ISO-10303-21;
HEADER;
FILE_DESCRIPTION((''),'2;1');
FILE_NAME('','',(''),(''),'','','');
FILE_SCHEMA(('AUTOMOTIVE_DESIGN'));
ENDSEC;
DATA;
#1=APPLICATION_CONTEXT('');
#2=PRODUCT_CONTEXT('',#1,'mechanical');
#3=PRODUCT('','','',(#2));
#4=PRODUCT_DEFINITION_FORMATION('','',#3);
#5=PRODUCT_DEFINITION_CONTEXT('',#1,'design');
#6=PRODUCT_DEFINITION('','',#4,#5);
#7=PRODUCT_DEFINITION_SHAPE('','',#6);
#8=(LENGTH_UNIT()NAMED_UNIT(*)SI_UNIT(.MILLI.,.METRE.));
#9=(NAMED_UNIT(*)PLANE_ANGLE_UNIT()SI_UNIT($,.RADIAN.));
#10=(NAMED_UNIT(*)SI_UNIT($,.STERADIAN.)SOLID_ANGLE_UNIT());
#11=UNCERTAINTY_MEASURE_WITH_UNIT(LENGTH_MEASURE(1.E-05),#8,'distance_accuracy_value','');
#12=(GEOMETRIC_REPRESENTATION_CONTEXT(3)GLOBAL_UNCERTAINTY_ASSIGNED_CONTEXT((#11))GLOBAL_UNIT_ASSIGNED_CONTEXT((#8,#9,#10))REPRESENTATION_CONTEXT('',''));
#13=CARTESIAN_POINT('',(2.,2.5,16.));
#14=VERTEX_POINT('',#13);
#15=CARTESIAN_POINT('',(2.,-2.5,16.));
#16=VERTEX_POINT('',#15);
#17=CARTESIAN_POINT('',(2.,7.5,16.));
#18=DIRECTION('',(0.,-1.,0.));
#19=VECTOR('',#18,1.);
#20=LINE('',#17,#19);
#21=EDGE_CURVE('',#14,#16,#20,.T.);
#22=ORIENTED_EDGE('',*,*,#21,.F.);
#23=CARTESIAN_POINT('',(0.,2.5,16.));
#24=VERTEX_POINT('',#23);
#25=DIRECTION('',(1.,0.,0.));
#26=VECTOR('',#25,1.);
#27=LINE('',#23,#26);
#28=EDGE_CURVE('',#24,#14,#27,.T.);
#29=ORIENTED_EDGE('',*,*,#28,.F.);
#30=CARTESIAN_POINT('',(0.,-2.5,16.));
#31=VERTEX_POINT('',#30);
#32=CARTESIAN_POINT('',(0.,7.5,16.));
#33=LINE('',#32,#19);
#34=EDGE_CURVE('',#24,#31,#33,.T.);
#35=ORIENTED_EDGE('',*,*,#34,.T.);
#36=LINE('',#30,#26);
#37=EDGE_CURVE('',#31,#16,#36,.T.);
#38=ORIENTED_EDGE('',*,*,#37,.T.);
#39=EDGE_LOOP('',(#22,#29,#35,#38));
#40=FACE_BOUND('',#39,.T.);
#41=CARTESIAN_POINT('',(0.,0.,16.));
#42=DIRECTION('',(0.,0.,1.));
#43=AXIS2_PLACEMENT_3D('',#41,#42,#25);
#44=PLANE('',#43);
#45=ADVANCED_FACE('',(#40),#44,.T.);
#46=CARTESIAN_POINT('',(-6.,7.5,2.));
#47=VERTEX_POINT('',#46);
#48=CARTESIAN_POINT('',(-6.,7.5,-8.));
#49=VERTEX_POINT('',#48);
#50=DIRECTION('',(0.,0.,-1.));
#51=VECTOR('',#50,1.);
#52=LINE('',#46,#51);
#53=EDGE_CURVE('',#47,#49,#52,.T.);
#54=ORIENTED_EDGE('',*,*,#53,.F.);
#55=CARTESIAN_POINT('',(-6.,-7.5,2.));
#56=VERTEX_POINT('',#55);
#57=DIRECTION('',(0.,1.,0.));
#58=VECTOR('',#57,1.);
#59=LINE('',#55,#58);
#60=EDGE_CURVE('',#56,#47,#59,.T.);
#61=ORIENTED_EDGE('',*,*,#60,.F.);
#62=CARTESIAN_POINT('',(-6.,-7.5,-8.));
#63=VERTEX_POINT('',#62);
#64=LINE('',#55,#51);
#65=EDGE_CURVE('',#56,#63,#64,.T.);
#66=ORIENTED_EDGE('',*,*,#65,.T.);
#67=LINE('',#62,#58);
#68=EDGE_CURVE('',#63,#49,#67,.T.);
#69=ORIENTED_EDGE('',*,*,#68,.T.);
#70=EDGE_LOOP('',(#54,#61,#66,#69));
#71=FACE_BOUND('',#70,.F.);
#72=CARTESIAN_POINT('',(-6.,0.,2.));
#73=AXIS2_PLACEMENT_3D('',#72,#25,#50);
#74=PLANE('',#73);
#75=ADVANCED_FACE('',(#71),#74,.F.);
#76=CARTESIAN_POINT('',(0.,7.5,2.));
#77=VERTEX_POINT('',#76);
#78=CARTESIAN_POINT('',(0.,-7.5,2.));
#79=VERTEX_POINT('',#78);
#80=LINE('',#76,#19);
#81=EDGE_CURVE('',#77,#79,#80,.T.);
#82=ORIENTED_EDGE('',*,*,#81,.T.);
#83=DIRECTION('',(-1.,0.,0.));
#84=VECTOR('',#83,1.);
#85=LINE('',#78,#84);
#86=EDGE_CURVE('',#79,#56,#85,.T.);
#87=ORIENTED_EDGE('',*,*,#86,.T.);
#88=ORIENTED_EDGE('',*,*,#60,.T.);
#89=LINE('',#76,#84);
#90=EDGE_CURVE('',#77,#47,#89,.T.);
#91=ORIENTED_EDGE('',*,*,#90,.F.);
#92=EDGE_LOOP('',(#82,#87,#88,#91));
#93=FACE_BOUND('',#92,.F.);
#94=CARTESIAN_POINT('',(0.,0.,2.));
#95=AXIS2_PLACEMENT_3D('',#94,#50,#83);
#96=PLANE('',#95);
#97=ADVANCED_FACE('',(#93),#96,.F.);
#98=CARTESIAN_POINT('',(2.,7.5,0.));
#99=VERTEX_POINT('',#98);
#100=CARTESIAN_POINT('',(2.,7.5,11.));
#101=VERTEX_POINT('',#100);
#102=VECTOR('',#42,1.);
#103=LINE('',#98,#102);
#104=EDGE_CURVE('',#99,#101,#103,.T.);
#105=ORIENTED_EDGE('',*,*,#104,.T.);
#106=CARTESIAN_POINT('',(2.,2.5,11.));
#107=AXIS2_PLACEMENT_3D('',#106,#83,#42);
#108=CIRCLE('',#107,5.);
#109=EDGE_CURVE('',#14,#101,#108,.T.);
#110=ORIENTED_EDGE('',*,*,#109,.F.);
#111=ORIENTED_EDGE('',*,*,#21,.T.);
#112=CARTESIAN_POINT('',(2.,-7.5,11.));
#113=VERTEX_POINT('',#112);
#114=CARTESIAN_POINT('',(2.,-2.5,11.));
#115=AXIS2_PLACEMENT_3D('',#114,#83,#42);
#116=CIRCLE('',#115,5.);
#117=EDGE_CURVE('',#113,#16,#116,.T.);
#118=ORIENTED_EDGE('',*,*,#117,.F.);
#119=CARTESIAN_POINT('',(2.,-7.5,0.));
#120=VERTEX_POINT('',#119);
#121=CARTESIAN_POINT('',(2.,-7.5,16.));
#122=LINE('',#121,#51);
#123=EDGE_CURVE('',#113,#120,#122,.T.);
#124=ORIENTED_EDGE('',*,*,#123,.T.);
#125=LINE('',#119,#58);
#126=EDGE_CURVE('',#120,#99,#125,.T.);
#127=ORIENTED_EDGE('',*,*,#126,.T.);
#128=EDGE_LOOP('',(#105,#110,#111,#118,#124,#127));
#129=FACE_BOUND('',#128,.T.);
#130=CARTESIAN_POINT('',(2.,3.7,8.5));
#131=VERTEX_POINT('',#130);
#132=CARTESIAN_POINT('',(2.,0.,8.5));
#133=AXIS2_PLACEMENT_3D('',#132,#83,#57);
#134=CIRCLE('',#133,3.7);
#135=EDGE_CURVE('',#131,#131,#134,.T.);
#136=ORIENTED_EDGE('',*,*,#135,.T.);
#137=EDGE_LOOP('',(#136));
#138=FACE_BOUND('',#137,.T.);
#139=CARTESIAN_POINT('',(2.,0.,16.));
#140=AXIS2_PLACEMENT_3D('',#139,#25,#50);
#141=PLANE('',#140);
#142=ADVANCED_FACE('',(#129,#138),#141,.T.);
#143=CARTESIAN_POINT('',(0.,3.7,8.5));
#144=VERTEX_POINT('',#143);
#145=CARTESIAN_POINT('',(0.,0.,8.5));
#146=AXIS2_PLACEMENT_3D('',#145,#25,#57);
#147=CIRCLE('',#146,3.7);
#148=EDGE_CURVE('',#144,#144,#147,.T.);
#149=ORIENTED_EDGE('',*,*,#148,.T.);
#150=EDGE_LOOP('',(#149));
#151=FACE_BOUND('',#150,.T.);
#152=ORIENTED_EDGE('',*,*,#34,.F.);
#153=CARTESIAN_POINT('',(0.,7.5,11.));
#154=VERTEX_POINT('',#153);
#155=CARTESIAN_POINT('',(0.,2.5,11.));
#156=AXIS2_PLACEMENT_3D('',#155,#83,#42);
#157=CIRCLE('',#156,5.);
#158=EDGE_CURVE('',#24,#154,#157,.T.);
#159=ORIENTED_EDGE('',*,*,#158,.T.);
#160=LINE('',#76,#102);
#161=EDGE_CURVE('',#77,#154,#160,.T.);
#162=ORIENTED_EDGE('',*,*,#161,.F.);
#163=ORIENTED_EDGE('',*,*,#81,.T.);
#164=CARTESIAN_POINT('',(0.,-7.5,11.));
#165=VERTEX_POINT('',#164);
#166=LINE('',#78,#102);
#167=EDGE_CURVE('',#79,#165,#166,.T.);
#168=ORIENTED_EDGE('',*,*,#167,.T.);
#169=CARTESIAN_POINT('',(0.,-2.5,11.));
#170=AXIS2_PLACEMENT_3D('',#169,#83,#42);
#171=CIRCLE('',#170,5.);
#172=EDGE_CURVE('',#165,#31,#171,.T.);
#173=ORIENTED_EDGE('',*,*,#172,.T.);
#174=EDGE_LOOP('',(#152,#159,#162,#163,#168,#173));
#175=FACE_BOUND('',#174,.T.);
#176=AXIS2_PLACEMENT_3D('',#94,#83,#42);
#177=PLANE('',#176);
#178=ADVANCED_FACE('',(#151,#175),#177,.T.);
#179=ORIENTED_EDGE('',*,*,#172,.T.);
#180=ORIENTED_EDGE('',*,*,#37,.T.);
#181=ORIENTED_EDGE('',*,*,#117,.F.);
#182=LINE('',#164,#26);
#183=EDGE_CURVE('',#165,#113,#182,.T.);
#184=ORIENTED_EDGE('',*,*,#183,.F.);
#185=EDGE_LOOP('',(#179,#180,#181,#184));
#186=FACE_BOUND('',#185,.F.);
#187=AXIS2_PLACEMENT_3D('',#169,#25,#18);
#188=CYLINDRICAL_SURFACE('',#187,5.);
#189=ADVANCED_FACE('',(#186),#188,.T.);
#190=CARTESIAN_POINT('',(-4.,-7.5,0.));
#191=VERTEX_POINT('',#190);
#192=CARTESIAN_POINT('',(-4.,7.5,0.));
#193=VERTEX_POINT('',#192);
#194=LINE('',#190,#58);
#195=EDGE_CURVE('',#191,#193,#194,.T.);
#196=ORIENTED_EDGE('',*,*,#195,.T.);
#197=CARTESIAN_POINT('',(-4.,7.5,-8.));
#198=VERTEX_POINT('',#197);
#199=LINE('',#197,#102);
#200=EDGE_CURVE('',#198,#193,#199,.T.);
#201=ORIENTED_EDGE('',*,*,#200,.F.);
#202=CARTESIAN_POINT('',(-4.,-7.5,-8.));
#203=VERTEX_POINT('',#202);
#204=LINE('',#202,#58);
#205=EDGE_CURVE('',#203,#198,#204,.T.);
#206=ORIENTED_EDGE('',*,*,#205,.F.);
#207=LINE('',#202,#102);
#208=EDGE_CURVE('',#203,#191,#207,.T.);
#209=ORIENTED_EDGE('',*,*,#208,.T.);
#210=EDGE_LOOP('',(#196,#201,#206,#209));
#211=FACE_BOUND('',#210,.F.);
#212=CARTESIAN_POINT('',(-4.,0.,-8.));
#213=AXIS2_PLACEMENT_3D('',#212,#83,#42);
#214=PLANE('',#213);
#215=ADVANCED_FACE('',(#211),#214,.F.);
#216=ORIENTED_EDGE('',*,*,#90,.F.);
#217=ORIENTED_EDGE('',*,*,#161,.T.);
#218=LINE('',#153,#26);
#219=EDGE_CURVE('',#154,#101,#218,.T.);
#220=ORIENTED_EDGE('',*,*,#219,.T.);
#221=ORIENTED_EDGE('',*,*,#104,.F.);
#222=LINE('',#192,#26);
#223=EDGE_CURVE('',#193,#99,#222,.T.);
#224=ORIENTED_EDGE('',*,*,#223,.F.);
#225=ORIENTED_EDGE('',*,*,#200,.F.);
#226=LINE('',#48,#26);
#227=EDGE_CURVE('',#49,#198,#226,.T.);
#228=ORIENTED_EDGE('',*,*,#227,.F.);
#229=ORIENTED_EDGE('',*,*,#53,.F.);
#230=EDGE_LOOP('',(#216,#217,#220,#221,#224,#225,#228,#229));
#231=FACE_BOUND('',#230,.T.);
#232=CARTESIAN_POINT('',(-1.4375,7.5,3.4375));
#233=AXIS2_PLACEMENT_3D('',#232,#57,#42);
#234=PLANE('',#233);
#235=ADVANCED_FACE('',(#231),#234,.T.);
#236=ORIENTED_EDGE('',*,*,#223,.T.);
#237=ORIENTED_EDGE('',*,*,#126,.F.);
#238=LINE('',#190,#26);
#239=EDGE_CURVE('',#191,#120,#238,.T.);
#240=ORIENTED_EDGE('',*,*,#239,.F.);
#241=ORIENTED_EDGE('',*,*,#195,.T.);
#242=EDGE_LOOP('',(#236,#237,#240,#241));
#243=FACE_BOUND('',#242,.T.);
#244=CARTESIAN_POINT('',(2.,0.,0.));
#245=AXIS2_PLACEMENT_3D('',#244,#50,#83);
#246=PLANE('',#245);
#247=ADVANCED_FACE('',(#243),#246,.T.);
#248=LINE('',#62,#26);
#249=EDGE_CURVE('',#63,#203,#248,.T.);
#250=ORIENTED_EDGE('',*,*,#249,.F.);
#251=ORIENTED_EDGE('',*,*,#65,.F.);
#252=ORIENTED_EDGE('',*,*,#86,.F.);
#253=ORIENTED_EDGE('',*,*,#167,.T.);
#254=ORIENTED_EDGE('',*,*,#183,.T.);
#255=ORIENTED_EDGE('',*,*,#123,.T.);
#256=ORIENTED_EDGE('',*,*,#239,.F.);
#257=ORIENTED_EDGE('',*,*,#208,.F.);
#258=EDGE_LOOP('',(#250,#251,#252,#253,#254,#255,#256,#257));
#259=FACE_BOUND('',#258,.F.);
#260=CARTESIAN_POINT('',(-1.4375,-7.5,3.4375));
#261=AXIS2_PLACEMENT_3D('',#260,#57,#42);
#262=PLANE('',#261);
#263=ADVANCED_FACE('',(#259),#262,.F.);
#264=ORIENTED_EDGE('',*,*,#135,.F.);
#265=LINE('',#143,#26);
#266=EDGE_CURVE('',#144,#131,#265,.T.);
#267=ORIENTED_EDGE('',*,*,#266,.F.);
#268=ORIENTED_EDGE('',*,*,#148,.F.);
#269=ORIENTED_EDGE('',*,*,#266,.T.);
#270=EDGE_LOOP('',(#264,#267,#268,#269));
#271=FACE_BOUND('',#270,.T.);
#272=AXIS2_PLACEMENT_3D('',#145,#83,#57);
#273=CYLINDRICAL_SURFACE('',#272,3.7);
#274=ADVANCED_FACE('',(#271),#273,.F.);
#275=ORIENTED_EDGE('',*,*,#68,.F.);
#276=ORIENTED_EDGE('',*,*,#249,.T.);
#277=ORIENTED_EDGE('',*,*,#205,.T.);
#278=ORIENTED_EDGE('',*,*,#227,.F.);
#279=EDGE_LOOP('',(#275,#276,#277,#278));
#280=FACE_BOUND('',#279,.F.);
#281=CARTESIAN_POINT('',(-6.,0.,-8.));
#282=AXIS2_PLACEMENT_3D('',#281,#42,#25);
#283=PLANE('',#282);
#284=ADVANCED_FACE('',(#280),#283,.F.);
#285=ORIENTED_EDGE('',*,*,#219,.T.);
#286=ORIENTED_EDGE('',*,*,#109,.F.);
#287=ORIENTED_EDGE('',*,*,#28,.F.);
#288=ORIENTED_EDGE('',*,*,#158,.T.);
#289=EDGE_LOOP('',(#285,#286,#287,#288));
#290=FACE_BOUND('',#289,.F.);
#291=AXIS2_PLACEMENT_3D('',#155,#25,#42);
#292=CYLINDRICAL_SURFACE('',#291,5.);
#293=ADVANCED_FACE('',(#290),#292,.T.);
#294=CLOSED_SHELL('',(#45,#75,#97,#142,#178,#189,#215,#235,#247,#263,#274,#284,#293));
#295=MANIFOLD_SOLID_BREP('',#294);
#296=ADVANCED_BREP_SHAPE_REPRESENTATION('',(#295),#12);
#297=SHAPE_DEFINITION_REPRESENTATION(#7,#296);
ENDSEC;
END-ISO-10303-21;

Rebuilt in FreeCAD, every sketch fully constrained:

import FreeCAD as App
import Part
import Sketcher

V = App.Vector
Q = App.Units.Quantity


def edges_at(feature, points):
    """Names of the edges that pass closest to the given points."""
    edges = feature.Shape.Edges
    near = lambda p: min(range(len(edges)), key=lambda i: edges[i].distToShape(Part.Vertex(*p))[0])
    return sorted({f"Edge{near(p) + 1}" for p in points})


def add_polygon(sketch, points):
    """Adds a closed chain of lines whose ends are joined by coincident constraints."""
    first, n = sketch.GeometryCount, len(points)
    for a, b in zip(points, points[1:] + points[:1]):
        sketch.addGeometry(Part.LineSegment(App.Vector(*a, 0), App.Vector(*b, 0)), False)
    for i in range(n):
        sketch.addConstraint(Sketcher.Constraint("Coincident", first + i, 2, first + (i + 1) % n, 1))

doc = App.newDocument("Part")
params = doc.addObject("Spreadsheet::Sheet", "Params")
for row, (alias, value) in enumerate([
    ("sketch1_width", "2 mm"),
    ("sketch1_width2", "6 mm"),
    ("sketch1_height", "16 mm"),
    ("sketch1_height2", "14 mm"),
    ("sketch1_height3", "10 mm"),
    ("pad1_length", "15 mm"),
    ("sketch2_diameter", "7.4 mm"),
    ("fillet_radius", "5 mm"),
], start=1):
    params.set(f"A{row}", alias)
    params.set(f"B{row}", "=" + value)
    params.setAlias(f"B{row}", alias)

body = doc.addObject("PartDesign::Body", "Body")

# Sketch on XZ plane
sketch1 = body.newObject("Sketcher::SketchObject", "Sketch")
sketch1.AttachmentSupport = (doc.getObject("XZ_Plane"), [""])
sketch1.MapMode = "FlatFace"
add_polygon(sketch1, [(2, 0), (2, 16), (0, 16), (0, 2), (-6, 2), (-6, -8), (-4, -8), (-4, 0)])  # lines 0-7
sketch1.addConstraint(Sketcher.Constraint("Vertical", 0))
sketch1.addConstraint(Sketcher.Constraint("Horizontal", 1))
sketch1.addConstraint(Sketcher.Constraint("Vertical", 2))
sketch1.addConstraint(Sketcher.Constraint("Horizontal", 3))
sketch1.addConstraint(Sketcher.Constraint("Vertical", 4))
sketch1.addConstraint(Sketcher.Constraint("Horizontal", 5))
sketch1.addConstraint(Sketcher.Constraint("Vertical", 6))
sketch1.addConstraint(Sketcher.Constraint("Horizontal", 7))
sketch1.addConstraint(Sketcher.Constraint("PointOnObject", 1, 2, -2))
sketch1.addConstraint(Sketcher.Constraint("PointOnObject", 6, 2, -1))
sketch1.addConstraint(Sketcher.Constraint("Equal", 1, 5))
sketch1.addConstraint(Sketcher.Constraint("DistanceX", 1, 2, 1, 1, Q("2 mm")))
sketch1.addConstraint(Sketcher.Constraint("DistanceX", 3, 2, 3, 1, Q("6 mm")))
sketch1.addConstraint(Sketcher.Constraint("DistanceY", 0, 1, 0, 2, Q("16 mm")))
sketch1.addConstraint(Sketcher.Constraint("DistanceY", 2, 2, 2, 1, Q("14 mm")))
sketch1.addConstraint(Sketcher.Constraint("DistanceY", 4, 2, 4, 1, Q("10 mm")))
sketch1.setExpression("Constraints[19]", "Params.sketch1_width")
sketch1.setExpression("Constraints[20]", "Params.sketch1_width2")
sketch1.setExpression("Constraints[21]", "Params.sketch1_height")
sketch1.setExpression("Constraints[22]", "Params.sketch1_height2")
sketch1.setExpression("Constraints[23]", "Params.sketch1_height3")
pad1 = body.newObject("PartDesign::Pad", "Pad")
pad1.Profile = sketch1
pad1.setExpression("Length", "Params.pad1_length")
pad1.Midplane = True

# Sketch on YZ plane
sketch2 = body.newObject("Sketcher::SketchObject", "Sketch001")
sketch2.AttachmentSupport = (doc.getObject("YZ_Plane"), [""])
sketch2.MapMode = "FlatFace"
sketch2.addGeometry(Part.Circle(V(0, 8.5, 0), V(0, 0, 1), 3.7), False)
sketch2.addConstraint(Sketcher.Constraint("PointOnObject", 0, 3, -2))
sketch2.addConstraint(Sketcher.Constraint("Diameter", 0, Q("7.4 mm")))
sketch2.addConstraint(Sketcher.Constraint("DistanceY", -1, 1, 0, 3, Q("8.5 mm")))
sketch2.setExpression("Constraints[1]", "Params.sketch2_diameter")
pocket1 = body.newObject("PartDesign::Pocket", "Pocket")
pocket1.Profile = sketch2
pocket1.Type = "UpToFirst"
pocket1.Reversed = True
doc.recompute()

fillet = body.newObject("PartDesign::Fillet", "Fillet")
fillet.Base = (pocket1, edges_at(pocket1, [(1, -7.5, 16), (1, 7.5, 16)]))
fillet.setExpression("Radius", "Params.fillet_radius")

doc.recompute()
